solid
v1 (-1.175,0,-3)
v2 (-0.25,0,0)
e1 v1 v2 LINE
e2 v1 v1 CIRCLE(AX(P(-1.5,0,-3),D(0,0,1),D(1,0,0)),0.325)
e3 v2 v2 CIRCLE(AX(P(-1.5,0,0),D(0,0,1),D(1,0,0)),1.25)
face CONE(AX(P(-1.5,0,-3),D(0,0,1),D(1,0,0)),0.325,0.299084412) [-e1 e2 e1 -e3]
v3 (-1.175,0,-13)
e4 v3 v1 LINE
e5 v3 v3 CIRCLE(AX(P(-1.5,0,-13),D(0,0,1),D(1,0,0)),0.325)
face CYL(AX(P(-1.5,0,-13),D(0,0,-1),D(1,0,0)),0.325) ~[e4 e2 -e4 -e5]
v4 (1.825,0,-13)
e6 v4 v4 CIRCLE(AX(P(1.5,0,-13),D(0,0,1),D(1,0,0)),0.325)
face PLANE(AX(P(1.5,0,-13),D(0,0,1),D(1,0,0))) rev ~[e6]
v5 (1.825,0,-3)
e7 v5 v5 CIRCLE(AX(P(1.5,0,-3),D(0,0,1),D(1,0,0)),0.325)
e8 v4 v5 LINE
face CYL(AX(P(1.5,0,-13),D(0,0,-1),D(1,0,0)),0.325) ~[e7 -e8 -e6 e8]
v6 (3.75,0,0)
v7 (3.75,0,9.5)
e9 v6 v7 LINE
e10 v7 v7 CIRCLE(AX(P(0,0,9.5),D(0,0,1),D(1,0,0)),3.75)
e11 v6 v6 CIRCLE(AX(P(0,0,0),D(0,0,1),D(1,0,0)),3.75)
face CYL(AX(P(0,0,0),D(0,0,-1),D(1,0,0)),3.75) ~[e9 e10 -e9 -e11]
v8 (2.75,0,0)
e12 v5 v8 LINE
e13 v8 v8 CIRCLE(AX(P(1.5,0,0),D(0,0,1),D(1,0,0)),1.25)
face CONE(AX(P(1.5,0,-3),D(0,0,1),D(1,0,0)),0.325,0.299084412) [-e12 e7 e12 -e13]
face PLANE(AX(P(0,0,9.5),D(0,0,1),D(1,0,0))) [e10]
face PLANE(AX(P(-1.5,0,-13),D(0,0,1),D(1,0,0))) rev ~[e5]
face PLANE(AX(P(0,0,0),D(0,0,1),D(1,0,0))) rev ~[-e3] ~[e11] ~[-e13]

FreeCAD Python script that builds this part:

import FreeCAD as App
import Part
import Sketcher
from FreeCAD import Vector


def add_polygon(sketch, points):
    """Adds a closed chain of lines whose ends are joined by coincident constraints."""
    first, n = sketch.GeometryCount, len(points)
    for a, b in zip(points, points[1:] + points[:1]):
        sketch.addGeometry(Part.LineSegment(App.Vector(*a, 0), App.Vector(*b, 0)), False)
    for i in range(n):
        sketch.addConstraint(Sketcher.Constraint("Coincident", first + i, 2, first + (i + 1) % n, 1))

doc = App.newDocument("Part")
body = doc.addObject("PartDesign::Body", "Body")

# Sketch on XY plane
sketch1 = body.newObject("Sketcher::SketchObject", "Sketch")
sketch1.AttachmentSupport = (doc.getObject("XY_Plane"), [""])
sketch1.MapMode = "FlatFace"
sketch1.AttachmentOffset = App.Placement(Vector(0, 0, -10), App.Rotation())
sketch1.addGeometry(Part.Circle(Vector(-9, 0, 0), Vector(0, 0, 1), 0.325), False)
sketch1.addConstraint([
    Sketcher.Constraint("PointOnObject", 0, 3, -1),
    Sketcher.Constraint("Diameter", 0, 0.65),
    Sketcher.Constraint("DistanceX", 0, 3, -1, 1, 9.0),
])
pad1 = body.newObject("PartDesign::Pad", "Pad")
pad1.Profile = sketch1
pad1.Length = 10
body2 = doc.addObject("PartDesign::Body", "Body001")

# Sketch on XZ plane
sketch2 = body2.newObject("Sketcher::SketchObject", "Sketch001")
sketch2.AttachmentSupport = (doc.getObject("XZ_Plane001"), [""])
sketch2.MapMode = "FlatFace"
add_polygon(sketch2, [(-9, 0), (-8.675, 0), (-7.75, 3), (-9, 3)])  # lines 0-3
sketch2.addGeometry(Part.LineSegment(Vector(-9, 0, 0), Vector(-9, 3, 0)), True)  # axis
sketch2.addConstraint([
    Sketcher.Constraint("Horizontal", 0),
    Sketcher.Constraint("Horizontal", 2),
    Sketcher.Constraint("Vertical", 3),
    Sketcher.Constraint("Vertical", 4),
    Sketcher.Constraint("Coincident", 4, 1, 3, 2),
    Sketcher.Constraint("PointOnObject", 0, 2, -1),
    Sketcher.Constraint("Horizontal", 1, 2, 4, 2),
    Sketcher.Constraint("DistanceY", 3, 2, 3, 1, 3.0),
    Sketcher.Constraint("DistanceX", 2, 2, -1, 1, 9.0),
    Sketcher.Constraint("DistanceX", 2, 2, 2, 1, 1.25),
    Sketcher.Constraint("DistanceX", 0, 1, 0, 2, 0.325),
])
revolution = body2.newObject("PartDesign::Revolution", "Revolution")
revolution.Profile = sketch2
revolution.ReferenceAxis = (sketch2, ["Axis0"])
revolution.Angle = 360
doc.recompute()

boolean = body2.newObject("PartDesign::Boolean", "Boolean")
boolean.Type = "Fuse"
boolean.addObjects([body])
body3 = doc.addObject("PartDesign::Body", "Body002")
doc.recompute()

body2.Placement = App.Placement(Vector(10.5, 0, -3), App.Rotation(Vector(0, 0, 1), 0))
boolean2 = body3.newObject("PartDesign::Boolean", "Boolean001")
boolean2.Type = "Fuse"
boolean2.addObjects([body2])
body4 = doc.addObject("PartDesign::Body", "Body003")

# Sketch on XY plane
sketch3 = body4.newObject("Sketcher::SketchObject", "Sketch002")
sketch3.AttachmentSupport = (doc.getObject("XY_Plane003"), [""])
sketch3.MapMode = "FlatFace"
sketch3.AttachmentOffset = App.Placement(Vector(0, 0, -10), App.Rotation())
sketch3.addGeometry(Part.Circle(Vector(-9, 0, 0), Vector(0, 0, 1), 0.325), False)
sketch3.addConstraint([
    Sketcher.Constraint("PointOnObject", 0, 3, -1),
    Sketcher.Constraint("Diameter", 0, 0.65),
    Sketcher.Constraint("DistanceX", 0, 3, -1, 1, 9.0),
])
pad2 = body4.newObject("PartDesign::Pad", "Pad001")
pad2.Profile = sketch3
pad2.Length = 10
body5 = doc.addObject("PartDesign::Body", "Body004")

# Sketch on XZ plane
sketch4 = body5.newObject("Sketcher::SketchObject", "Sketch003")
sketch4.AttachmentSupport = (doc.getObject("XZ_Plane004"), [""])
sketch4.MapMode = "FlatFace"
add_polygon(sketch4, [(-9, 0), (-8.675, 0), (-7.75, 3), (-9, 3)])  # lines 0-3
sketch4.addGeometry(Part.LineSegment(Vector(-9, 0, 0), Vector(-9, 3, 0)), True)  # axis
sketch4.addConstraint([
    Sketcher.Constraint("Horizontal", 0),
    Sketcher.Constraint("Horizontal", 2),
    Sketcher.Constraint("Vertical", 3),
    Sketcher.Constraint("Vertical", 4),
    Sketcher.Constraint("Coincident", 4, 1, 3, 2),
    Sketcher.Constraint("PointOnObject", 0, 2, -1),
    Sketcher.Constraint("Horizontal", 1, 2, 4, 2),
    Sketcher.Constraint("DistanceY", 3, 2, 3, 1, 3.0),
    Sketcher.Constraint("DistanceX", 2, 2, -1, 1, 9.0),
    Sketcher.Constraint("DistanceX", 2, 2, 2, 1, 1.25),
    Sketcher.Constraint("DistanceX", 0, 1, 0, 2, 0.325),
])
revolution2 = body5.newObject("PartDesign::Revolution", "Revolution001")
revolution2.Profile = sketch4
revolution2.ReferenceAxis = (sketch4, ["Axis0"])
revolution2.Angle = 360
doc.recompute()

boolean3 = body5.newObject("PartDesign::Boolean", "Boolean002")
boolean3.Type = "Fuse"
boolean3.addObjects([body4])
body6 = doc.addObject("PartDesign::Body", "Body005")
doc.recompute()

body5.Placement = App.Placement(Vector(7.5, 0, -3), App.Rotation(Vector(0, 0, 1), 0))
boolean4 = body6.newObject("PartDesign::Boolean", "Boolean003")
boolean4.Type = "Fuse"
boolean4.addObjects([body5])
body7 = doc.addObject("PartDesign::Body", "Body006")

# Sketch on XY plane
sketch5 = body7.newObject("Sketcher::SketchObject", "Sketch004")
sketch5.AttachmentSupport = (doc.getObject("XY_Plane006"), [""])
sketch5.MapMode = "FlatFace"
sketch5.addGeometry(Part.Circle(Vector(0, 0, 0), Vector(0, 0, 1), 3.75), False)
sketch5.addConstraint([
    Sketcher.Constraint("Coincident", 0, 3, -1, 1),
    Sketcher.Constraint("Diameter", 0, 7.5),
])
pad3 = body7.newObject("PartDesign::Pad", "Pad002")
pad3.Profile = sketch5
pad3.Length = 9.5
doc.recompute()

boolean5 = body7.newObject("PartDesign::Boolean", "Boolean004")
boolean5.Type = "Fuse"
boolean5.addObjects([body3])
doc.recompute()

boolean6 = body7.newObject("PartDesign::Boolean", "Boolean005")
boolean6.Type = "Fuse"
boolean6.addObjects([body6])

doc.recompute()
